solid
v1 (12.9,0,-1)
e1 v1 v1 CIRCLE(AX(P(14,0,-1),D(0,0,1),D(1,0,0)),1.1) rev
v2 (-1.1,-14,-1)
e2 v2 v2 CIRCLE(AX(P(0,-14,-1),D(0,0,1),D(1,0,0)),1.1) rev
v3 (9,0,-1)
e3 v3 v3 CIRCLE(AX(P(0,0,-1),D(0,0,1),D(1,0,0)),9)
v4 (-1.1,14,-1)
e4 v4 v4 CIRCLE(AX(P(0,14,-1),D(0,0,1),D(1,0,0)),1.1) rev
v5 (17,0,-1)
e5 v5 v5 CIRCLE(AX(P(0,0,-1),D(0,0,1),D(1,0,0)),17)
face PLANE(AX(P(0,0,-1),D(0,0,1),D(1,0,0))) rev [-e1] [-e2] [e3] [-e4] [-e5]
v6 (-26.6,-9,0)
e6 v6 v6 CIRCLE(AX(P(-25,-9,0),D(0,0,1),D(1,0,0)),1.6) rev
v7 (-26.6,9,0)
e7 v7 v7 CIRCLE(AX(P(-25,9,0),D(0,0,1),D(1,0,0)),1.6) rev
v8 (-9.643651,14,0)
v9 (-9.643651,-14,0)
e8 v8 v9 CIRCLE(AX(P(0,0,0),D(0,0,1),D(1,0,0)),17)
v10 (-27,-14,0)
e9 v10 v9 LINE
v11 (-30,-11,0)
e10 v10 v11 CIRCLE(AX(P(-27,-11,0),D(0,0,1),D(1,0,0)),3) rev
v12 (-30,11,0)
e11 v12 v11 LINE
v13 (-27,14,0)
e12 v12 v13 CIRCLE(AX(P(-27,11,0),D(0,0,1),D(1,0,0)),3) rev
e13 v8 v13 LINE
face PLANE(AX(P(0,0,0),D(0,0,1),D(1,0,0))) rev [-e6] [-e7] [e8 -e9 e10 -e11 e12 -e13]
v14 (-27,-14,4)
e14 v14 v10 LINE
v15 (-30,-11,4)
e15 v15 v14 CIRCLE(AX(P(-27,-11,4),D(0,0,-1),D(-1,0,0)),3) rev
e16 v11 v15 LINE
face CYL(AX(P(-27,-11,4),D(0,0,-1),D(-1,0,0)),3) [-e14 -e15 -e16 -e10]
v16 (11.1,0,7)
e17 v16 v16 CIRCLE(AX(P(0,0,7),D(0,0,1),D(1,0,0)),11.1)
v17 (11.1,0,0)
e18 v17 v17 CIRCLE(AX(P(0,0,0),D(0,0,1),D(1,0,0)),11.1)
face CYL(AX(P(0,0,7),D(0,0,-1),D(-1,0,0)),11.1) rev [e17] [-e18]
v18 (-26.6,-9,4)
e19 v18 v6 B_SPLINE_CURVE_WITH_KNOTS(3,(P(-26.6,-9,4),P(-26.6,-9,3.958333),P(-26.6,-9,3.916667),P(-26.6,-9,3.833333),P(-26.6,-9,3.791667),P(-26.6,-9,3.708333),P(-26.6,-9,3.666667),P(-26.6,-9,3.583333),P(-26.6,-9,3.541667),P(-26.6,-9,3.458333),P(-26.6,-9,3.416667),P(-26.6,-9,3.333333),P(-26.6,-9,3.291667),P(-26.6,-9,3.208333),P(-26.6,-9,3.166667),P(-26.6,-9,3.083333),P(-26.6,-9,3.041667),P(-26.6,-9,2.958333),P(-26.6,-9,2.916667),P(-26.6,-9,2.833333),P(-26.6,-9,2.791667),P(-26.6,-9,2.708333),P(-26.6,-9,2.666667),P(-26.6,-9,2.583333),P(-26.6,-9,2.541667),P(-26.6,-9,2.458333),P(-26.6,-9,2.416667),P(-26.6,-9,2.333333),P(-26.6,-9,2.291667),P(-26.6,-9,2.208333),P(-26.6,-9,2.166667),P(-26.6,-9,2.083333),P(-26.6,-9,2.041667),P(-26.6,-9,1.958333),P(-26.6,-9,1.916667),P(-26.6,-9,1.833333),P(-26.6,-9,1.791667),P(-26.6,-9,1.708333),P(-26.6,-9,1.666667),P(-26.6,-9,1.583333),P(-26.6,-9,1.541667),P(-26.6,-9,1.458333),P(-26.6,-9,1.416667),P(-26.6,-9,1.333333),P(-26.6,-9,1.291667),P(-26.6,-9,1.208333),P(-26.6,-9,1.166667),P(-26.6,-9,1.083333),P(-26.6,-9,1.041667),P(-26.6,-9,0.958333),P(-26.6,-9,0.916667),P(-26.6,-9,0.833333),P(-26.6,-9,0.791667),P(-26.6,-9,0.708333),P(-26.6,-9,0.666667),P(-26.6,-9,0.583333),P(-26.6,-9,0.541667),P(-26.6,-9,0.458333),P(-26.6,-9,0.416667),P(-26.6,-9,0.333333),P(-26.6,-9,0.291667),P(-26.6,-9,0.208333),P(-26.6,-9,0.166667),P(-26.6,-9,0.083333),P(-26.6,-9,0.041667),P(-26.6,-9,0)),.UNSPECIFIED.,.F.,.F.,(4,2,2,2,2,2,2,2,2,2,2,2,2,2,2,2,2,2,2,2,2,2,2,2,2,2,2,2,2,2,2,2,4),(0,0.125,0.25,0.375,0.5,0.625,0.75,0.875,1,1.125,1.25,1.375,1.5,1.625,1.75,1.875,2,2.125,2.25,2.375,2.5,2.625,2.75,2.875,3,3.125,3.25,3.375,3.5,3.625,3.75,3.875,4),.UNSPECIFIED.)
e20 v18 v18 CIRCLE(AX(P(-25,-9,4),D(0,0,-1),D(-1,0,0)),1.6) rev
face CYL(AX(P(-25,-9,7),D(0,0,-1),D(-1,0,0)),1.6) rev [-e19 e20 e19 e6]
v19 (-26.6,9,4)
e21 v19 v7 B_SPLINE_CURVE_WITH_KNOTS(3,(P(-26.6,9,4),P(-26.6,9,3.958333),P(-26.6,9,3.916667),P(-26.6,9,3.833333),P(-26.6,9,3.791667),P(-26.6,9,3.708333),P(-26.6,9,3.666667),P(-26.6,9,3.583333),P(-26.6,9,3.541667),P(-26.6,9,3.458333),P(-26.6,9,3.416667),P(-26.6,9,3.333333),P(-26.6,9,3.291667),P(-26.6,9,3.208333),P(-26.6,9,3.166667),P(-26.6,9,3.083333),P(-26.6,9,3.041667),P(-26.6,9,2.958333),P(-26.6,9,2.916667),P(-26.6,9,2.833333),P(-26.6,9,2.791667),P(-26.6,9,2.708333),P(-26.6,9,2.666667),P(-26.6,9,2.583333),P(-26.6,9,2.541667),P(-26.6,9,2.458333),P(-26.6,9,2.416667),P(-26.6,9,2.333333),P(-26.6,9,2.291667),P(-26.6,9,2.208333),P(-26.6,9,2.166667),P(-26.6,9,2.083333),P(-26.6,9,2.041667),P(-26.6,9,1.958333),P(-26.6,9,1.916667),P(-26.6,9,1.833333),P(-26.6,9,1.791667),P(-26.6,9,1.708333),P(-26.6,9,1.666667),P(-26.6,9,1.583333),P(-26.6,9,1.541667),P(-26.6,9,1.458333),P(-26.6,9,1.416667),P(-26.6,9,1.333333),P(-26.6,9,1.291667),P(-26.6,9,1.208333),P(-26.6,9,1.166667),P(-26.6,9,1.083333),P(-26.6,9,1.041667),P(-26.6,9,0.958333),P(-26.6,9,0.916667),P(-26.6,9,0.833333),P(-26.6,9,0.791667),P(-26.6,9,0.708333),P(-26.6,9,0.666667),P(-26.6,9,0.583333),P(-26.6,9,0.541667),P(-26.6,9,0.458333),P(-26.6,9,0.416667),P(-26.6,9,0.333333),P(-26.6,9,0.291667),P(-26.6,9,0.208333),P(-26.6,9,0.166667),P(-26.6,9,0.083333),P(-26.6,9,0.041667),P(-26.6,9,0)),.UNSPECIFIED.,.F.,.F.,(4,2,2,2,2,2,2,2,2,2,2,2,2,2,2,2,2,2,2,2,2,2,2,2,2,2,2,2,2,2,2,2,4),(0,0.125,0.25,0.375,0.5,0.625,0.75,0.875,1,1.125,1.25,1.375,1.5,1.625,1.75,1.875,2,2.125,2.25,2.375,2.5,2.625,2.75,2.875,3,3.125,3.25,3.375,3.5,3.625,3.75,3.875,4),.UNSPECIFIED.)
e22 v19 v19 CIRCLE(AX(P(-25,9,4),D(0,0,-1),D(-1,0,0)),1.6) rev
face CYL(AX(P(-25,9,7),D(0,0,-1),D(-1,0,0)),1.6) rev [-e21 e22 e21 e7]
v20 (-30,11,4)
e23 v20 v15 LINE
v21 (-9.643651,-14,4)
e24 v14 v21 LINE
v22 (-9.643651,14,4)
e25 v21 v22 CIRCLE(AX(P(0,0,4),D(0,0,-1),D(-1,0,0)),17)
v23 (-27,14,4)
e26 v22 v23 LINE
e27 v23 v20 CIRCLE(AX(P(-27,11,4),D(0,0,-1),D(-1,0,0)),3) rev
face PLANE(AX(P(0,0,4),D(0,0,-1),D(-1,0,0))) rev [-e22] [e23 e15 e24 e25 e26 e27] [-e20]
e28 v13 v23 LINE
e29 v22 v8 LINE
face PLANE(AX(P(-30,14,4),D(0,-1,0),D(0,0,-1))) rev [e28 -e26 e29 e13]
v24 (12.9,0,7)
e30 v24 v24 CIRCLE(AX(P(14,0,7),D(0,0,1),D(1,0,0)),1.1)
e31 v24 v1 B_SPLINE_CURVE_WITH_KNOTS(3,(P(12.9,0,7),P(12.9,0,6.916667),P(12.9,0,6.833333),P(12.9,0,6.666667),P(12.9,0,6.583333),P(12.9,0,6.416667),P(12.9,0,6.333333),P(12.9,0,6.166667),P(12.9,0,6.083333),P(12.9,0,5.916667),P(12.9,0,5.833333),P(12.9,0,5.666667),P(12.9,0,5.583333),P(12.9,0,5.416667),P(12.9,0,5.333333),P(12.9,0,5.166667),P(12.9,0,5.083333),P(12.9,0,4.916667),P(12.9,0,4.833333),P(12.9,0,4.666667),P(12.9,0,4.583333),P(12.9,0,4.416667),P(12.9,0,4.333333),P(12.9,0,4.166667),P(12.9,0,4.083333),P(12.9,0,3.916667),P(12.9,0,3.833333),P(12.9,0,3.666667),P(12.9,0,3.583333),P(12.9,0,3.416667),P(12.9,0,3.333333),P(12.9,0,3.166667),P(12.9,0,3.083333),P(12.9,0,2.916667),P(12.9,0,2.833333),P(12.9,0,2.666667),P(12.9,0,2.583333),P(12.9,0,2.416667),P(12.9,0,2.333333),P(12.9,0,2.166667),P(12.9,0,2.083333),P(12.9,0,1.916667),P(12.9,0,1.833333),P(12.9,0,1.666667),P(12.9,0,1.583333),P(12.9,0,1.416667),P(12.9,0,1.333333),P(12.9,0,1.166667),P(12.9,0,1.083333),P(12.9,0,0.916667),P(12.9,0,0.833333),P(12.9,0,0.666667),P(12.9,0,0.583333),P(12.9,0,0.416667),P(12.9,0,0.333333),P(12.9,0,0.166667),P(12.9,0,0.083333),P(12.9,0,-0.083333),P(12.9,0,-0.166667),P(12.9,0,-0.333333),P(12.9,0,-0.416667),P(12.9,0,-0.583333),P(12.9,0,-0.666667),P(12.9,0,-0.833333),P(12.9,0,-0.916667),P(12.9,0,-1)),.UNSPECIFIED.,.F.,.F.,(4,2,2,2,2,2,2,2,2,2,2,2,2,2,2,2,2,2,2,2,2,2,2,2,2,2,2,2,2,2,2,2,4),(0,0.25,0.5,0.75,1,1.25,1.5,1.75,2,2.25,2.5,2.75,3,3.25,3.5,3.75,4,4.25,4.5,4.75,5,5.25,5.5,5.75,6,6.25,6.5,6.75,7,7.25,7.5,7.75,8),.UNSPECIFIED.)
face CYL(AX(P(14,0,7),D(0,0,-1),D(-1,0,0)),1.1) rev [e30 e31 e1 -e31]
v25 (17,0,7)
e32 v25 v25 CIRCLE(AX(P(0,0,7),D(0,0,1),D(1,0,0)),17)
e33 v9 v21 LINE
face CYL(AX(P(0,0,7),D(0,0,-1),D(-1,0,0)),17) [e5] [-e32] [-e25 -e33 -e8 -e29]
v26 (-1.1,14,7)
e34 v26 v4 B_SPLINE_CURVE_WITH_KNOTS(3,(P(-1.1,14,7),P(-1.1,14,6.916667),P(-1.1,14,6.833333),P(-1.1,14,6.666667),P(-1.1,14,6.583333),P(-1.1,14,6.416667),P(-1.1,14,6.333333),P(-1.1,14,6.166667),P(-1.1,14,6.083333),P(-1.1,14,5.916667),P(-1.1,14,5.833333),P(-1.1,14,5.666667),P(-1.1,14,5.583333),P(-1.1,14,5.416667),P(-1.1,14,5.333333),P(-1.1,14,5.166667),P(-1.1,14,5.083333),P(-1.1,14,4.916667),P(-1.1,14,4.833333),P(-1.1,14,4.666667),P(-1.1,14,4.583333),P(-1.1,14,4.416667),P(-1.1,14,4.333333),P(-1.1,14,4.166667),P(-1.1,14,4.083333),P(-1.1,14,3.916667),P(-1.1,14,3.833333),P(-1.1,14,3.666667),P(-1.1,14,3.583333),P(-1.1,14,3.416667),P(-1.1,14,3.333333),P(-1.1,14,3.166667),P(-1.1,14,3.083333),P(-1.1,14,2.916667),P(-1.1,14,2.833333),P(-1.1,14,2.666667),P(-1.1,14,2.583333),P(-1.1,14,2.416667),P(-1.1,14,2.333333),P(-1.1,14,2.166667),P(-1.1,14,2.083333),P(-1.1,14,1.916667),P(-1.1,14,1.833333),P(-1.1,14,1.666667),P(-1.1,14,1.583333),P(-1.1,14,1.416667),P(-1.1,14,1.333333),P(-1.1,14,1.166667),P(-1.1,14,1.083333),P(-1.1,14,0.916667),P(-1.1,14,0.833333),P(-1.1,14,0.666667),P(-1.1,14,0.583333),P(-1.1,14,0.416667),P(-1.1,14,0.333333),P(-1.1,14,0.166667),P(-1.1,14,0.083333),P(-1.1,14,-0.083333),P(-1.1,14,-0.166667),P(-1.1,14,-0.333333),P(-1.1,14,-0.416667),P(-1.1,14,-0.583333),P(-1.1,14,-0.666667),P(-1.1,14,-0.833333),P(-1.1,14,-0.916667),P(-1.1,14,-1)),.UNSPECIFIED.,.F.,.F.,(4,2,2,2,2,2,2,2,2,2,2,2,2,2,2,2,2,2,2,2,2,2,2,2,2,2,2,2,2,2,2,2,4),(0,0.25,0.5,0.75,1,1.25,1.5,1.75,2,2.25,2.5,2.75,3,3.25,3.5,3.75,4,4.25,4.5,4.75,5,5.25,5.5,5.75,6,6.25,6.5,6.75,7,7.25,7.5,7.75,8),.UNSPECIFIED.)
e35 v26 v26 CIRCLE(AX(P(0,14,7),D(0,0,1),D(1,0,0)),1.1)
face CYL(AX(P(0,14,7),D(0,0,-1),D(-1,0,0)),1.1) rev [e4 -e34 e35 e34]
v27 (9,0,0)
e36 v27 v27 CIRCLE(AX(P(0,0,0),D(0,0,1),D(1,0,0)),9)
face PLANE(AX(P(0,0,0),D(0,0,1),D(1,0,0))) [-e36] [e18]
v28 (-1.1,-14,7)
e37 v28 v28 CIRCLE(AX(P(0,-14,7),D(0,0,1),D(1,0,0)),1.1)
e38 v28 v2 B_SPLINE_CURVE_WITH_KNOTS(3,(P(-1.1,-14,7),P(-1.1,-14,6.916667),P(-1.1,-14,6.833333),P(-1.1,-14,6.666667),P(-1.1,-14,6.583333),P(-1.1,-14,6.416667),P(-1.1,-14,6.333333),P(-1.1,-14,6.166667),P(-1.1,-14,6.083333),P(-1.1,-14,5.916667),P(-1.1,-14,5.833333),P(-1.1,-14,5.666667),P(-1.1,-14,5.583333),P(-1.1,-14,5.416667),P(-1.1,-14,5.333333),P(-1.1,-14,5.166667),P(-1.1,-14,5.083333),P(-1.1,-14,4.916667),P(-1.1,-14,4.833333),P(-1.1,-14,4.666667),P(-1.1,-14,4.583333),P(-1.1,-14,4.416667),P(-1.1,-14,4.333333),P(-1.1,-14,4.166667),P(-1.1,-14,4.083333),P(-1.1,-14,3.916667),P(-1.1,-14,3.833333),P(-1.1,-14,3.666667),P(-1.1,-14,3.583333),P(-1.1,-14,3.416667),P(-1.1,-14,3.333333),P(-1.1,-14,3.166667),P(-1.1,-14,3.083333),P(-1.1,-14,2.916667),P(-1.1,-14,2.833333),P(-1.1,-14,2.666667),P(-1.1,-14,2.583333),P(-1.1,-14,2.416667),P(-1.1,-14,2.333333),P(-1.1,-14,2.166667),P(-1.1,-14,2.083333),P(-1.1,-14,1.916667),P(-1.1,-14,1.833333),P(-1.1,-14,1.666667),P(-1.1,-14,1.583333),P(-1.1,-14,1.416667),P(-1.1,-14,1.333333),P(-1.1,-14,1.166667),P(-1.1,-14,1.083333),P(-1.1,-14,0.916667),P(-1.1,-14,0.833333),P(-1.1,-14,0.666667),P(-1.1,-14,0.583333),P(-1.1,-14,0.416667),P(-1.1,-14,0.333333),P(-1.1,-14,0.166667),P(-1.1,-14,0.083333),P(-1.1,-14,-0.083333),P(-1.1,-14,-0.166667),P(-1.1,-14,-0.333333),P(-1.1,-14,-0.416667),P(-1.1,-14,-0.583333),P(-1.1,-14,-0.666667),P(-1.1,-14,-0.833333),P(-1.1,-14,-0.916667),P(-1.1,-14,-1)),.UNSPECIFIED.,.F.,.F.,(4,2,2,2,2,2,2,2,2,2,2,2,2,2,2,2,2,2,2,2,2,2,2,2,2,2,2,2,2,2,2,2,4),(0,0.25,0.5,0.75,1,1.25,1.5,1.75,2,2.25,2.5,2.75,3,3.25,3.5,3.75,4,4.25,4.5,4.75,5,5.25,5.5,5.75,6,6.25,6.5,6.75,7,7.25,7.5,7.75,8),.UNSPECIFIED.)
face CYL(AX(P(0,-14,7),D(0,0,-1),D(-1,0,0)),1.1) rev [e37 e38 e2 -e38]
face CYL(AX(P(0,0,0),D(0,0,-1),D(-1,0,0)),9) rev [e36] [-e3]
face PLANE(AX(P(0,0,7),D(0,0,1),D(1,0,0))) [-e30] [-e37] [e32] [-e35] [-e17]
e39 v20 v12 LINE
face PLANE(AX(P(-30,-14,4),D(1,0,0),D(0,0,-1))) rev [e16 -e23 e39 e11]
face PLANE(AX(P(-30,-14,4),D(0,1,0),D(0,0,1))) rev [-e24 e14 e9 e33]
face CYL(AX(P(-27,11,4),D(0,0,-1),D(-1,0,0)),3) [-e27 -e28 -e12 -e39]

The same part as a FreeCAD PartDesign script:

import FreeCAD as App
import Part
import Sketcher
from FreeCAD import Vector


def edges_at(feature, points):
    """Names of the edges that pass closest to the given points."""
    edges = feature.Shape.Edges
    near = lambda p: min(range(len(edges)), key=lambda i: edges[i].distToShape(Part.Vertex(*p))[0])
    return sorted({f"Edge{near(p) + 1}" for p in points})

doc = App.newDocument("Part")
body = doc.addObject("PartDesign::Body", "Body")

sketch1 = body.newObject("Sketcher::SketchObject", "Sketch")
sketch1.AttachmentSupport = (doc.getObject("XY_Plane"), [""])
sketch1.MapMode = "FlatFace"
sketch1.addGeometry([
    Part.Circle(Vector(0, 0, 0), Vector(0, 0, 1), 17),
    Part.Circle(Vector(0, 0, 0), Vector(0, 0, 1), 11.1),
], False)
sketch1.addConstraint([
    Sketcher.Constraint("Coincident", 0, 3, -1, 1),
    Sketcher.Constraint("Coincident", 1, 3, -1, 1),
    Sketcher.Constraint("Diameter", 0, 34.0),
    Sketcher.Constraint("Diameter", 1, 22.2),
])
pad1 = body.newObject("PartDesign::Pad", "Pad")
pad1.Profile = sketch1
pad1.Length = 7

sketch2 = body.newObject("Sketcher::SketchObject", "Sketch001")
sketch2.AttachmentSupport = (doc.getObject("XY_Plane"), [""])
sketch2.MapMode = "FlatFace"
sketch2.addGeometry([
    Part.LineSegment(Vector(-30, 14, 0), Vector(-30, -14, 0)),
    Part.LineSegment(Vector(-30, -14, 0), Vector(0, -14, 0)),
    Part.LineSegment(Vector(0, -14, 0), Vector(0, 14, 0)),
    Part.LineSegment(Vector(0, 14, 0), Vector(-30, 14, 0)),
], False)
sketch2.addConstraint([
    Sketcher.Constraint("Coincident", 0, 2, 1, 1),
    Sketcher.Constraint("Coincident", 1, 2, 2, 1),
    Sketcher.Constraint("Coincident", 2, 2, 3, 1),
    Sketcher.Constraint("Coincident", 3, 2, 0, 1),
    Sketcher.Constraint("Vertical", 0),
    Sketcher.Constraint("Horizontal", 1),
    Sketcher.Constraint("Vertical", 2),
    Sketcher.Constraint("Horizontal", 3),
    Sketcher.Constraint("Symmetric", 1, 2, 2, 2, -1, 1),
    Sketcher.Constraint("DistanceX", 1, 1, 1, 2, 30.0),
    Sketcher.Constraint("DistanceY", 0, 2, 0, 1, 28.0),
])
pad2 = body.newObject("PartDesign::Pad", "Pad001")
pad2.Profile = sketch2
pad2.Length = 4

sketch3 = body.newObject("Sketcher::SketchObject", "Sketch002")
sketch3.AttachmentSupport = (doc.getObject("XY_Plane"), [""])
sketch3.MapMode = "FlatFace"
sketch3.AttachmentOffset = App.Placement(Vector(0, 0, -50), App.Rotation())
sketch3.addGeometry(Part.Circle(Vector(0, 0, 0), Vector(0, 0, 1), 11.1), False)
sketch3.addConstraint([
    Sketcher.Constraint("Coincident", 0, 3, -1, 1),
    Sketcher.Constraint("Diameter", 0, 22.2),
])
pocket1 = body.newObject("PartDesign::Pocket", "Pocket")
pocket1.Profile = sketch3
pocket1.Type = "ThroughAll"
pocket1.Reversed = True

sketch4 = body.newObject("Sketcher::SketchObject", "Sketch003")
sketch4.AttachmentSupport = (doc.getObject("XY_Plane"), [""])
sketch4.MapMode = "FlatFace"
sketch4.AttachmentOffset = App.Placement(Vector(0, 0, -1), App.Rotation())
sketch4.addGeometry([
    Part.Circle(Vector(0, 0, 0), Vector(0, 0, 1), 17),
    Part.Circle(Vector(0, 0, 0), Vector(0, 0, 1), 9),
], False)
sketch4.addConstraint([
    Sketcher.Constraint("Coincident", 0, 3, -1, 1),
    Sketcher.Constraint("Coincident", 1, 3, -1, 1),
    Sketcher.Constraint("Diameter", 0, 34.0),
    Sketcher.Constraint("Diameter", 1, 18.0),
])
pad3 = body.newObject("PartDesign::Pad", "Pad002")
pad3.Profile = sketch4
pad3.Length = 1

sketch5 = body.newObject("Sketcher::SketchObject", "Sketch004")
sketch5.AttachmentSupport = (doc.getObject("XY_Plane"), [""])
sketch5.MapMode = "FlatFace"
sketch5.AttachmentOffset = App.Placement(Vector(0, 0, -50), App.Rotation())
sketch5.addGeometry([
    Part.Circle(Vector(-25, -9, 0), Vector(0, 0, 1), 1.6),
    Part.Circle(Vector(-25, 9, 0), Vector(0, 0, 1), 1.6),
], False)
sketch5.addConstraint([
    Sketcher.Constraint("Equal", 0, 1),
    Sketcher.Constraint("Symmetric", 0, 3, 1, 3, -1),
    Sketcher.Constraint("Diameter", 0, 3.2),
    Sketcher.Constraint("DistanceX", 0, 3, -1, 1, 25.0),
    Sketcher.Constraint("DistanceY", 0, 3, -1, 1, 9.0),
])
pocket2 = body.newObject("PartDesign::Pocket", "Pocket001")
pocket2.Profile = sketch5
pocket2.Type = "ThroughAll"
pocket2.Reversed = True

sketch6 = body.newObject("Sketcher::SketchObject", "Sketch005")
sketch6.AttachmentSupport = (doc.getObject("XY_Plane"), [""])
sketch6.MapMode = "FlatFace"
sketch6.AttachmentOffset = App.Placement(Vector(0, 0, -50), App.Rotation())
sketch6.addGeometry([
    Part.Circle(Vector(14, 0, 0), Vector(0, 0, 1), 1.1),
    Part.Circle(Vector(0, -14, 0), Vector(0, 0, 1), 1.1),
    Part.Circle(Vector(0, 14, 0), Vector(0, 0, 1), 1.1),
], False)
sketch6.addConstraint([
    Sketcher.Constraint("Equal", 0, 1),
    Sketcher.Constraint("Equal", 1, 2),
    Sketcher.Constraint("Symmetric", 1, 3, 2, 3, -1, 1),
    Sketcher.Constraint("PointOnObject", 0, 3, -1),
    Sketcher.Constraint("PointOnObject", 1, 3, -2),
    Sketcher.Constraint("Diameter", 0, 2.2),
    Sketcher.Constraint("DistanceX", -1, 1, 0, 3, 14.0),
    Sketcher.Constraint("DistanceY", 1, 3, -1, 1, 14.0),
])
pocket3 = body.newObject("PartDesign::Pocket", "Pocket002")
pocket3.Profile = sketch6
pocket3.Type = "ThroughAll"
pocket3.Reversed = True
doc.recompute()

fillet = body.newObject("PartDesign::Fillet", "Fillet")
fillet.Base = (pocket3, edges_at(pocket3, [(-30, -14, 2), (-30, 14, 2)]))
fillet.Radius = 3

doc.recompute()
